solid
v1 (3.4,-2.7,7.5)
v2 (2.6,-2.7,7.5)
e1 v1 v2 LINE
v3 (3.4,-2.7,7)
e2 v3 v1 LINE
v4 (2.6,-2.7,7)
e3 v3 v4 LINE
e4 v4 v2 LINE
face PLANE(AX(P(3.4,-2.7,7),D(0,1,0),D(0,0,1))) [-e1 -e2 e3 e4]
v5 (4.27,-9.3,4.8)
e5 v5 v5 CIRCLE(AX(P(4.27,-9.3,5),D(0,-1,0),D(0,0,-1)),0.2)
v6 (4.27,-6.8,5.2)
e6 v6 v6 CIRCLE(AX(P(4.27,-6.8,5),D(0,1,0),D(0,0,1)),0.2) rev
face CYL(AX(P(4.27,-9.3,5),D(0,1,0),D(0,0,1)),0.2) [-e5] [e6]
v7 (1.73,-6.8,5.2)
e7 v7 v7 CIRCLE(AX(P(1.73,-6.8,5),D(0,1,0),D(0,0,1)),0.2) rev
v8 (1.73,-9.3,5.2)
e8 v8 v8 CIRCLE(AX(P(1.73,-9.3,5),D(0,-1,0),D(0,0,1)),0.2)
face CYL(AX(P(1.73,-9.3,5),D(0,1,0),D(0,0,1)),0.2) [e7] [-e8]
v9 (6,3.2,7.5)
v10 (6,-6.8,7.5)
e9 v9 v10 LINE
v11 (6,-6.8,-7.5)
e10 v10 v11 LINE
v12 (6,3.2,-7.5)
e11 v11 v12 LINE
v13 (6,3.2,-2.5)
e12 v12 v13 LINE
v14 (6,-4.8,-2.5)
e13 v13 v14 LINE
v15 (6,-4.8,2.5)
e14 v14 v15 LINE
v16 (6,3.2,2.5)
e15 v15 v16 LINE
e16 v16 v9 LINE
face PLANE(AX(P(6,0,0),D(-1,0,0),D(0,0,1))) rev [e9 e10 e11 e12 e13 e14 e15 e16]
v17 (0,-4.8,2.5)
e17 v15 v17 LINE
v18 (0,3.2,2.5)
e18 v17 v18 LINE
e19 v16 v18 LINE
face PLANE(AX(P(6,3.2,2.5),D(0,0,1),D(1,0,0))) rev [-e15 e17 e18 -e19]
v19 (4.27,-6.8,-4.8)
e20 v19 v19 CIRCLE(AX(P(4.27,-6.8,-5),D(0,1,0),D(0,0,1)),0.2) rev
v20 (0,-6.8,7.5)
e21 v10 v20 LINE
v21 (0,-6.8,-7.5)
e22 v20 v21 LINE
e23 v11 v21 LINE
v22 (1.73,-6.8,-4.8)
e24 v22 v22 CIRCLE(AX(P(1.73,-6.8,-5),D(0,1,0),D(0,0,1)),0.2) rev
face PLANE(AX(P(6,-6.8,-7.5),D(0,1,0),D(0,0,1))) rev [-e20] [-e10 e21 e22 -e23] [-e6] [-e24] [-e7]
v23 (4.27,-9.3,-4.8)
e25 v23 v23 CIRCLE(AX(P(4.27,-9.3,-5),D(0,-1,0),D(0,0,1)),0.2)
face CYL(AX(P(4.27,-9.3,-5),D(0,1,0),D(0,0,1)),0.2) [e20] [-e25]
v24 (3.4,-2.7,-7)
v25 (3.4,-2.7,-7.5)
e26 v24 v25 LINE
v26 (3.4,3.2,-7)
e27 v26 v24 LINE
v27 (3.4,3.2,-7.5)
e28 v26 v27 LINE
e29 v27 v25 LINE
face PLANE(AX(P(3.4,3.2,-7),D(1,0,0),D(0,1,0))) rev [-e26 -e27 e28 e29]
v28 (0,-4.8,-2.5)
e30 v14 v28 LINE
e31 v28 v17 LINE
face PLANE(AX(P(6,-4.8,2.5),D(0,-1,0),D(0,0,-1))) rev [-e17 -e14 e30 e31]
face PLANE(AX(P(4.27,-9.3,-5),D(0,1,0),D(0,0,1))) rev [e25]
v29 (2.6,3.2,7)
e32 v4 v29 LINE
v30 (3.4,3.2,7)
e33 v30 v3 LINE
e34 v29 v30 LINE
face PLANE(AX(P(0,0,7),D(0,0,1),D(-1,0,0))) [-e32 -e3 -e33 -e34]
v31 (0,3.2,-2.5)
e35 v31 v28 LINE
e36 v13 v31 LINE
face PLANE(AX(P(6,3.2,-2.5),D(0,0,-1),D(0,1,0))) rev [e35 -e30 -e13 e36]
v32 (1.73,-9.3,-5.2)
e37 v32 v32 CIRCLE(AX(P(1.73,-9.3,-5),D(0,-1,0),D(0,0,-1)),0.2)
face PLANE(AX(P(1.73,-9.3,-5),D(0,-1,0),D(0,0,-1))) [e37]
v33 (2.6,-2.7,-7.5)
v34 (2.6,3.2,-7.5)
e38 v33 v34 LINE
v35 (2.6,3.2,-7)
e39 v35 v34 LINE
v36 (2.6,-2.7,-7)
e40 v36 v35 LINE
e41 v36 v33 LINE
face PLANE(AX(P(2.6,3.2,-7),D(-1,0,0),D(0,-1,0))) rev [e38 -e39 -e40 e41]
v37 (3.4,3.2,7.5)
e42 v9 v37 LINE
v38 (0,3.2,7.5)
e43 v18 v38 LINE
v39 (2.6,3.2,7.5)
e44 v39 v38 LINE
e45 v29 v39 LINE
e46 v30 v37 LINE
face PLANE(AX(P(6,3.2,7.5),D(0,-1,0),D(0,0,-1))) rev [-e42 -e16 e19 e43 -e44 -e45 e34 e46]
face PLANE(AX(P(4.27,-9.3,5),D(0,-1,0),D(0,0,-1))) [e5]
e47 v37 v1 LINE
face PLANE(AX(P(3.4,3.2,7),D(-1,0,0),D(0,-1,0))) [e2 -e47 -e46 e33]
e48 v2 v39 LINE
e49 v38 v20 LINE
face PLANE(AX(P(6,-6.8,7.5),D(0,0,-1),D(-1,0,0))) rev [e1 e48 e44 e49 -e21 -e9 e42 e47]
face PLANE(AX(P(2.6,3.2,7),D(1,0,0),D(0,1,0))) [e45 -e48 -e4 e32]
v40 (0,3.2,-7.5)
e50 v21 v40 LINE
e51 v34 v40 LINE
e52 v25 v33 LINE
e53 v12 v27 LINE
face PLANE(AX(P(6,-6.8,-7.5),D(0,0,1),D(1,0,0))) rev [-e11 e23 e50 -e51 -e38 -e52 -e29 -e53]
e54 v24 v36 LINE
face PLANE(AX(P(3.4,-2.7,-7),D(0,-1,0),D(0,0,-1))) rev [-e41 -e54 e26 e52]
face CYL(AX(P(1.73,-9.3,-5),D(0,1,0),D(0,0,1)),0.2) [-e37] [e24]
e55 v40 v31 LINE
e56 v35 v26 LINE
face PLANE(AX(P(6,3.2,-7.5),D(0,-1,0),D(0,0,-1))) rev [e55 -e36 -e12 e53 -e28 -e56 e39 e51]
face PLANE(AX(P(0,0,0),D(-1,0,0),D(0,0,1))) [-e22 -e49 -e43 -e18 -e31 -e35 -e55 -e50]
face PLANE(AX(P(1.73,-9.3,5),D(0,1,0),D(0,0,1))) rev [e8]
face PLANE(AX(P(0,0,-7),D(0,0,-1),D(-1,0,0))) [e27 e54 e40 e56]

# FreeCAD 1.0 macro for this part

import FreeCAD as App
import Part
import Sketcher
from FreeCAD import Vector
Q = App.Units.Quantity


def add_polygon(sketch, points):
    """Adds a closed chain of lines whose ends are joined by coincident constraints."""
    first, n = sketch.GeometryCount, len(points)
    for a, b in zip(points, points[1:] + points[:1]):
        sketch.addGeometry(Part.LineSegment(App.Vector(*a, 0), App.Vector(*b, 0)), False)
    for i in range(n):
        sketch.addConstraint(Sketcher.Constraint("Coincident", first + i, 2, first + (i + 1) % n, 1))

doc = App.newDocument("Part")
params = doc.addObject("Spreadsheet::Sheet", "Params")
for row, (alias, value) in enumerate([
    ("sketch1_width", "10 mm"),
    ("sketch1_width2", "8 mm"),
    ("sketch1_height", "15 mm"),
    ("pad1_length", "6 mm"),
    ("sketch2_width", "0.8 mm"),
    ("sketch2_height", "5.9 mm"),
    ("pocket1_length", "0.5 mm"),
    ("sketch3_diameter", "0.4 mm"),
    ("pad2_length", "2.5 mm"),
], start=1):
    params.set(f"A{row}", alias)
    params.set(f"B{row}", "=" + value)
    params.setAlias(f"B{row}", alias)

body = doc.addObject("PartDesign::Body", "Body")

# Sketch on YZ plane
sketch1 = body.newObject("Sketcher::SketchObject", "Sketch")
sketch1.AttachmentSupport = (doc.getObject("YZ_Plane"), [""])
sketch1.MapMode = "FlatFace"
add_polygon(sketch1, [(3.2, 7.5), (-6.8, 7.5), (-6.8, -7.5), (3.2, -7.5), (3.2, -2.5), (-4.8, -2.5), (-4.8, 2.5), (3.2, 2.5)])  # lines 0-7
sketch1.addConstraint([
    Sketcher.Constraint("Horizontal", 0),
    Sketcher.Constraint("Vertical", 1),
    Sketcher.Constraint("Horizontal", 2),
    Sketcher.Constraint("Vertical", 3),
    Sketcher.Constraint("Horizontal", 4),
    Sketcher.Constraint("Vertical", 5),
    Sketcher.Constraint("Horizontal", 6),
    Sketcher.Constraint("Vertical", 7),
    Sketcher.Constraint("Symmetric", 3, 2, 6, 2, -1),
    Sketcher.Constraint("Equal", 3, 5),
    Sketcher.Constraint("Equal", 5, 7),
    Sketcher.Constraint("DistanceX", 0, 2, 0, 1, Q("10 mm")),
    Sketcher.Constraint("DistanceX", 4, 2, 4, 1, Q("8 mm")),
    Sketcher.Constraint("DistanceY", 1, 2, 1, 1, Q("15 mm")),
    Sketcher.Constraint("DistanceX", 0, 2, -1, 1, Q("6.8 mm")),
])
sketch1.setExpression("Constraints[19]", "Params.sketch1_width")
sketch1.setExpression("Constraints[20]", "Params.sketch1_width2")
sketch1.setExpression("Constraints[21]", "Params.sketch1_height")
pad1 = body.newObject("PartDesign::Pad", "Pad")
pad1.Profile = sketch1
pad1.setExpression("Length", "Params.pad1_length")

# Sketch on XY plane
sketch2 = body.newObject("Sketcher::SketchObject", "Sketch001")
sketch2.AttachmentSupport = (doc.getObject("XY_Plane"), [""])
sketch2.MapMode = "FlatFace"
sketch2.AttachmentOffset = App.Placement(Vector(0, 0, -7.5), App.Rotation())
add_polygon(sketch2, [(3.4, 3.2), (3.4, -2.7), (2.6, -2.7), (2.6, 3.2)])  # lines 0-3
sketch2.addConstraint([
    Sketcher.Constraint("Vertical", 0),
    Sketcher.Constraint("Horizontal", 1),
    Sketcher.Constraint("Vertical", 2),
    Sketcher.Constraint("Horizontal", 3),
    Sketcher.Constraint("DistanceX", 1, 2, 1, 1, Q("0.8 mm")),
    Sketcher.Constraint("DistanceY", 0, 2, 0, 1, Q("5.9 mm")),
    Sketcher.Constraint("DistanceX", -1, 1, 0, 2, Q("3.4 mm")),
    Sketcher.Constraint("DistanceY", 0, 2, -1, 1, Q("2.7 mm")),
])
sketch2.setExpression("Constraints[8]", "Params.sketch2_width")
sketch2.setExpression("Constraints[9]", "Params.sketch2_height")
pocket1 = body.newObject("PartDesign::Pocket", "Pocket")
pocket1.Profile = sketch2
pocket1.setExpression("Length", "Params.pocket1_length")
pocket1.Reversed = True
doc.recompute()

mirrored = body.newObject("PartDesign::Mirrored", "Mirrored")
mirrored.Originals = [pocket1]
mirrored.MirrorPlane = (doc.getObject("XY_Plane"), [""])
body.Tip = mirrored

# Sketch on XZ plane
sketch3 = body.newObject("Sketcher::SketchObject", "Sketch002")
sketch3.AttachmentSupport = (doc.getObject("XZ_Plane"), [""])
sketch3.MapMode = "FlatFace"
sketch3.AttachmentOffset = App.Placement(Vector(0, 0, 6.8), App.Rotation())
sketch3.addGeometry([
    Part.Circle(Vector(1.73, -5, 0), Vector(0, 0, 1), 0.2),
    Part.Circle(Vector(4.27, -5, 0), Vector(0, 0, 1), 0.2),
    Part.Circle(Vector(4.27, 5, 0), Vector(0, 0, 1), 0.2),
    Part.Circle(Vector(1.73, 5, 0), Vector(0, 0, 1), 0.2),
], False)
sketch3.addConstraint([
    Sketcher.Constraint("Equal", 0, 1),
    Sketcher.Constraint("Equal", 1, 2),
    Sketcher.Constraint("Equal", 2, 3),
    Sketcher.Constraint("Symmetric", 1, 3, 2, 3, -1),
    Sketcher.Constraint("Symmetric", 0, 3, 3, 3, -1),
    Sketcher.Constraint("Horizontal", 0, 3, 1, 3),
    Sketcher.Constraint("Diameter", 0, Q("0.4 mm")),
    Sketcher.Constraint("DistanceY", 0, 3, -1, 1, Q("5 mm")),
    Sketcher.Constraint("DistanceX", -1, 1, 0, 3, Q("1.73 mm")),
    Sketcher.Constraint("DistanceX", -1, 1, 1, 3, Q("4.27 mm")),
])
sketch3.setExpression("Constraints[6]", "Params.sketch3_diameter")
pad2 = body.newObject("PartDesign::Pad", "Pad001")
pad2.Profile = sketch3
pad2.setExpression("Length", "Params.pad2_length")

doc.recompute()
